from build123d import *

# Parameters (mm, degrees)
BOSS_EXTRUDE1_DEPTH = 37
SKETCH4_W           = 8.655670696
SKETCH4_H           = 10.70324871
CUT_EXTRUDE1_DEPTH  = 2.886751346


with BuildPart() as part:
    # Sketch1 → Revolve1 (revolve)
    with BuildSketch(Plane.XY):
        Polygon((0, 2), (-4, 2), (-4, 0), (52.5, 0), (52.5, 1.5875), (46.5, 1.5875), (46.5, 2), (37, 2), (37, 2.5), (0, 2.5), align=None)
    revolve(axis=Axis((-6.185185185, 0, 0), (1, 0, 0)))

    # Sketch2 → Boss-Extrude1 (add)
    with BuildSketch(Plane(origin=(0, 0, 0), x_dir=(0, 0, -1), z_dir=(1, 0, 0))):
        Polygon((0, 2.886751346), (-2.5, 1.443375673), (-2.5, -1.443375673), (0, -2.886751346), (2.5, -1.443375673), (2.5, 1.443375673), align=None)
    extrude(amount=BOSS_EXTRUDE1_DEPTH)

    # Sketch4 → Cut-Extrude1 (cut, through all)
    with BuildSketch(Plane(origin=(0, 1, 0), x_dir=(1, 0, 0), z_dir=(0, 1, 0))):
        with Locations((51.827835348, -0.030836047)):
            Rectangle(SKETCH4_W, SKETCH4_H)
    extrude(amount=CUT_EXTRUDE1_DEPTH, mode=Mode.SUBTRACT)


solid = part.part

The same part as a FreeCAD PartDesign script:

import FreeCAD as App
import Part
import Sketcher
Q = App.Units.Quantity


def add_polygon(sketch, points):
    """Adds a closed chain of lines whose ends are joined by coincident constraints."""
    first, n = sketch.GeometryCount, len(points)
    for a, b in zip(points, points[1:] + points[:1]):
        sketch.addGeometry(Part.LineSegment(App.Vector(*a, 0), App.Vector(*b, 0)), False)
    for i in range(n):
        sketch.addConstraint(Sketcher.Constraint("Coincident", first + i, 2, first + (i + 1) % n, 1))

doc = App.newDocument("Part")
params = doc.addObject("Spreadsheet::Sheet", "Params")
for row, (alias, value) in enumerate([
    ("sketch1_width", "4 mm"),
    ("sketch1_width2", "6 mm"),
    ("sketch1_width3", "37 mm"),
    ("sketch1_height", "2 mm"),
    ("sketch1_width4", "56.5 mm"),
    ("revolution_angle", "360 deg"),
    ("pad1_length", "37 mm"),
], start=1):
    params.set(f"A{row}", alias)
    params.set(f"B{row}", "=" + value)
    params.setAlias(f"B{row}", alias)

body = doc.addObject("PartDesign::Body", "Body")

sketch1 = body.newObject("Sketcher::SketchObject", "Sketch")
sketch1.AttachmentSupport = (doc.getObject("XY_Plane"), [""])
sketch1.MapMode = "FlatFace"
add_polygon(sketch1, [(0, 2), (-4, 2), (-4, 0), (52.5, 0), (52.5, 1.59), (46.5, 1.59), (46.5, 2), (37, 2), (37, 2.5), (0, 2.5)])
sketch1.addConstraint([
    Sketcher.Constraint("Horizontal", 0),
    Sketcher.Constraint("Vertical", 1),
    Sketcher.Constraint("Horizontal", 2),
    Sketcher.Constraint("Vertical", 3),
    Sketcher.Constraint("Horizontal", 4),
    Sketcher.Constraint("Vertical", 5),
    Sketcher.Constraint("Horizontal", 6),
    Sketcher.Constraint("Vertical", 7),
    Sketcher.Constraint("Horizontal", 8),
    Sketcher.Constraint("Vertical", 9),
    Sketcher.Constraint("PointOnObject", 1, 2, -1),
    Sketcher.Constraint("PointOnObject", 8, 2, -2),
    Sketcher.Constraint("Horizontal", 0, 2, 5, 2),
    Sketcher.Constraint("DistanceX", 0, 2, 0, 1, Q("4 mm")),
    Sketcher.Constraint("DistanceX", 4, 2, 4, 1, Q("6 mm")),
    Sketcher.Constraint("DistanceX", 8, 2, 8, 1, Q("37 mm")),
    Sketcher.Constraint("DistanceY", 1, 2, 1, 1, Q("2 mm")),
    Sketcher.Constraint("DistanceX", 2, 1, 2, 2, Q("56.5 mm")),
    Sketcher.Constraint("DistanceY", 7, 1, 7, 2, Q("0.5 mm")),
    Sketcher.Constraint("DistanceY", 3, 1, 3, 2, Q("1.5875 mm")),
])
sketch1.setExpression("Constraints[23]", "Params.sketch1_width")
sketch1.setExpression("Constraints[24]", "Params.sketch1_width2")
sketch1.setExpression("Constraints[25]", "Params.sketch1_width3")
sketch1.setExpression("Constraints[26]", "Params.sketch1_height")
sketch1.setExpression("Constraints[27]", "Params.sketch1_width4")
revolution = body.newObject("PartDesign::Revolution", "Revolution")
revolution.Profile = sketch1
revolution.ReferenceAxis = (sketch1, ["H_Axis"])
revolution.setExpression("Angle", "Params.revolution_angle")

sketch2 = body.newObject("Sketcher::SketchObject", "Sketch001")
sketch2.AttachmentSupport = (doc.getObject("YZ_Plane"), [""])
sketch2.MapMode = "FlatFace"
add_polygon(sketch2, [(2.9, 0), (1.4, 2.5), (-1.4, 2.5), (-2.9, 0), (-1.4, -2.5), (1.4, -2.5)])
sketch2.addConstraint([
    Sketcher.Constraint("Horizontal", 1),
    Sketcher.Constraint("Horizontal", 4),
    Sketcher.Constraint("Symmetric", 0, 2, 3, 2, -1, 1),
    Sketcher.Constraint("Symmetric", 2, 2, 5, 2, -1, 1),
    Sketcher.Constraint("PointOnObject", 2, 2, -1),
    Sketcher.Constraint("Parallel", 2, 5),
    Sketcher.Constraint("Vertical", 1, 2, 3, 2),
    Sketcher.Constraint("Angle", 0, Q("120 deg")),
    Sketcher.Constraint("DistanceY", 3, 2, 1, 2, Q("5 mm")),
    Sketcher.Constraint("DistanceX", 1, 2, 1, 1, Q("2.886751 mm")),
])
pad1 = body.newObject("PartDesign::Pad", "Pad")
pad1.Profile = sketch2
pad1.setExpression("Length", "Params.pad1_length")

sketch3 = body.newObject("Sketcher::SketchObject", "Sketch002")
sketch3.AttachmentSupport = (doc.getObject("XZ_Plane"), [""])
sketch3.MapMode = "FlatFace"
sketch3.AttachmentOffset = App.Placement(App.Vector(0, 0, -1), App.Rotation())
add_polygon(sketch3, [(48, -5), (48, 5), (56, 5), (56, -5)])
sketch3.addConstraint([
    Sketcher.Constraint("Vertical", 0),
    Sketcher.Constraint("Horizontal", 1),
    Sketcher.Constraint("Vertical", 2),
    Sketcher.Constraint("Horizontal", 3),
    Sketcher.Constraint("DistanceX", -1, 1, 0, 2, Q("47.5 mm")),
    Sketcher.Constraint("DistanceX", 1, 1, 1, 2, Q("8.655671 mm")),
    Sketcher.Constraint("DistanceY", 0, 1, 0, 2, Q("10.703249 mm")),
    Sketcher.Constraint("DistanceY", -1, 1, 0, 2, Q("5.38246 mm")),
])
pocket1 = body.newObject("PartDesign::Pocket", "Pocket")
pocket1.Profile = sketch3
pocket1.Type = "ThroughAll"

doc.recompute()
